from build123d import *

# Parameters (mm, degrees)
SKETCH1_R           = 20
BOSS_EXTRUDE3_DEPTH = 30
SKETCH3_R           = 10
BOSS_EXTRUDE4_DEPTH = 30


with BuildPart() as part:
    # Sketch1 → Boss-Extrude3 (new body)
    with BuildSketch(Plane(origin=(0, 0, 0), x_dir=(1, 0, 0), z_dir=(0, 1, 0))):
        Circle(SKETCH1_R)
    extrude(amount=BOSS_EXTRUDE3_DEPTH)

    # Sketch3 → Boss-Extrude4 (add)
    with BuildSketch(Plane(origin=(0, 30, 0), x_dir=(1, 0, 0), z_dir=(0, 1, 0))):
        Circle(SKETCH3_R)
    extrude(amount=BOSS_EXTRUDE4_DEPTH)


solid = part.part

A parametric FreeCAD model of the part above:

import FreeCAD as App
import Part
import Sketcher

V = App.Vector

doc = App.newDocument("Part")
body = doc.addObject("PartDesign::Body", "Body")

# Sketch on XZ plane
sketch1 = body.newObject("Sketcher::SketchObject", "Sketch")
sketch1.AttachmentSupport = (doc.getObject("XZ_Plane"), [""])
sketch1.MapMode = "FlatFace"
sketch1.addGeometry(Part.Circle(V(0, 0, 0), V(0, 0, 1), 20), False)
sketch1.addConstraint(Sketcher.Constraint("Coincident", 0, 3, -1, 1))
sketch1.addConstraint(Sketcher.Constraint("Diameter", 0, 40.0))
pad1 = body.newObject("PartDesign::Pad", "Pad")
pad1.Profile = sketch1
pad1.Length = 30
pad1.Reversed = True

# Sketch on XZ plane
sketch2 = body.newObject("Sketcher::SketchObject", "Sketch001")
sketch2.AttachmentSupport = (doc.getObject("XZ_Plane"), [""])
sketch2.MapMode = "FlatFace"
sketch2.AttachmentOffset = App.Placement(V(0, 0, -30), App.Rotation())
sketch2.addGeometry(Part.Circle(V(0, 0, 0), V(0, 0, 1), 10), False)
sketch2.addConstraint(Sketcher.Constraint("Coincident", 0, 3, -1, 1))
sketch2.addConstraint(Sketcher.Constraint("Diameter", 0, 20.0))
pad2 = body.newObject("PartDesign::Pad", "Pad001")
pad2.Profile = sketch2
pad2.Length = 30
pad2.Reversed = True

doc.recompute()
